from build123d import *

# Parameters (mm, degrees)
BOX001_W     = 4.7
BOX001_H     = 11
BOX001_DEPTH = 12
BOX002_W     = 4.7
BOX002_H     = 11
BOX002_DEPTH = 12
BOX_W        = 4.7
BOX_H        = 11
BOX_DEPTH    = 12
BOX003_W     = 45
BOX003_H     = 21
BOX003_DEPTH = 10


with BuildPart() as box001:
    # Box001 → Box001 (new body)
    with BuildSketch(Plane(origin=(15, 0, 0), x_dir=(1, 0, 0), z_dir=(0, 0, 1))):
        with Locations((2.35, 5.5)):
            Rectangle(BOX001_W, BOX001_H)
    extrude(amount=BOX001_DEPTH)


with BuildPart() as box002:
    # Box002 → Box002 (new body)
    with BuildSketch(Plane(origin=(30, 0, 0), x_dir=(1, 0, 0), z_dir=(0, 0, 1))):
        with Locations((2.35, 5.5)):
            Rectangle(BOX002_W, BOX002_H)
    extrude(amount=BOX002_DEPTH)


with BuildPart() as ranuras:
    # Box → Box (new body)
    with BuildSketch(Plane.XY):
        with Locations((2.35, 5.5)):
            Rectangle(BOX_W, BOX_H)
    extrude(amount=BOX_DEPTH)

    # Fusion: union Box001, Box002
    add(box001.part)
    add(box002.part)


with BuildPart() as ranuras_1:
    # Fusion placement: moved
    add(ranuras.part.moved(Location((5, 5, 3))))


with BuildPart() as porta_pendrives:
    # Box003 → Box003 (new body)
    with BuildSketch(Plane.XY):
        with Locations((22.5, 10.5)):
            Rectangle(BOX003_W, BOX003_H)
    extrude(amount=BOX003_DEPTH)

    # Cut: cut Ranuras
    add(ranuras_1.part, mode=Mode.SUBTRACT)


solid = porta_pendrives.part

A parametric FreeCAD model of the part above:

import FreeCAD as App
import Part
import Sketcher
Q = App.Units.Quantity

doc = App.newDocument("Part")
params = doc.addObject("Spreadsheet::Sheet", "Params")
for row, (alias, value) in enumerate([
    ("sketch1_height", "11 mm"),
    ("sketch1_width", "4.7 mm"),
    ("pad1_length", "12 mm"),
    ("sketch2_height", "11 mm"),
    ("sketch2_width", "4.7 mm"),
    ("pad2_length", "12 mm"),
    ("sketch3_height", "11 mm"),
    ("sketch3_width", "4.7 mm"),
    ("pad3_length", "12 mm"),
    ("sketch4_width", "45 mm"),
    ("sketch4_height", "21 mm"),
    ("pad4_length", "10 mm"),
], start=1):
    params.set(f"A{row}", alias)
    params.set(f"B{row}", "=" + value)
    params.setAlias(f"B{row}", alias)

body = doc.addObject("PartDesign::Body", "Body")

# Sketch on XY plane
sketch1 = body.newObject("Sketcher::SketchObject", "Sketch")
sketch1.AttachmentSupport = (doc.getObject("XY_Plane"), [""])
sketch1.MapMode = "FlatFace"
sketch1.addGeometry(Part.LineSegment(App.Vector(15, 11, 0), App.Vector(15, 0, 0)), False)
sketch1.addGeometry(Part.LineSegment(App.Vector(15, 0, 0), App.Vector(19.7, 0, 0)), False)
sketch1.addGeometry(Part.LineSegment(App.Vector(19.7, 0, 0), App.Vector(19.7, 11, 0)), False)
sketch1.addGeometry(Part.LineSegment(App.Vector(19.7, 11, 0), App.Vector(15, 11, 0)), False)
sketch1.addConstraint(Sketcher.Constraint("Coincident", 0, 2, 1, 1))
sketch1.addConstraint(Sketcher.Constraint("Coincident", 1, 2, 2, 1))
sketch1.addConstraint(Sketcher.Constraint("Coincident", 2, 2, 3, 1))
sketch1.addConstraint(Sketcher.Constraint("Coincident", 3, 2, 0, 1))
sketch1.addConstraint(Sketcher.Constraint("Vertical", 0))
sketch1.addConstraint(Sketcher.Constraint("Horizontal", 1))
sketch1.addConstraint(Sketcher.Constraint("Vertical", 2))
sketch1.addConstraint(Sketcher.Constraint("Horizontal", 3))
sketch1.addConstraint(Sketcher.Constraint("PointOnObject", 0, 2, -1))
sketch1.addConstraint(Sketcher.Constraint("DistanceY", 0, 2, 0, 1, Q("11 mm")))
sketch1.addConstraint(Sketcher.Constraint("DistanceX", 1, 1, 1, 2, Q("4.7 mm")))
sketch1.addConstraint(Sketcher.Constraint("DistanceX", -1, 1, 0, 2, Q("15 mm")))
sketch1.setExpression("Constraints[9]", "Params.sketch1_height")
sketch1.setExpression("Constraints[10]", "Params.sketch1_width")
pad1 = body.newObject("PartDesign::Pad", "Pad")
pad1.Profile = sketch1
pad1.setExpression("Length", "Params.pad1_length")
body2 = doc.addObject("PartDesign::Body", "Body001")

# Sketch on XY plane
sketch2 = body2.newObject("Sketcher::SketchObject", "Sketch001")
sketch2.AttachmentSupport = (doc.getObject("XY_Plane001"), [""])
sketch2.MapMode = "FlatFace"
sketch2.addGeometry(Part.LineSegment(App.Vector(30, 11, 0), App.Vector(30, 0, 0)), False)
sketch2.addGeometry(Part.LineSegment(App.Vector(30, 0, 0), App.Vector(34.7, 0, 0)), False)
sketch2.addGeometry(Part.LineSegment(App.Vector(34.7, 0, 0), App.Vector(34.7, 11, 0)), False)
sketch2.addGeometry(Part.LineSegment(App.Vector(34.7, 11, 0), App.Vector(30, 11, 0)), False)
sketch2.addConstraint(Sketcher.Constraint("Coincident", 0, 2, 1, 1))
sketch2.addConstraint(Sketcher.Constraint("Coincident", 1, 2, 2, 1))
sketch2.addConstraint(Sketcher.Constraint("Coincident", 2, 2, 3, 1))
sketch2.addConstraint(Sketcher.Constraint("Coincident", 3, 2, 0, 1))
sketch2.addConstraint(Sketcher.Constraint("Vertical", 0))
sketch2.addConstraint(Sketcher.Constraint("Horizontal", 1))
sketch2.addConstraint(Sketcher.Constraint("Vertical", 2))
sketch2.addConstraint(Sketcher.Constraint("Horizontal", 3))
sketch2.addConstraint(Sketcher.Constraint("PointOnObject", 0, 2, -1))
sketch2.addConstraint(Sketcher.Constraint("DistanceY", 0, 2, 0, 1, Q("11 mm")))
sketch2.addConstraint(Sketcher.Constraint("DistanceX", 1, 1, 1, 2, Q("4.7 mm")))
sketch2.addConstraint(Sketcher.Constraint("DistanceX", -1, 1, 0, 2, Q("30 mm")))
sketch2.setExpression("Constraints[9]", "Params.sketch2_height")
sketch2.setExpression("Constraints[10]", "Params.sketch2_width")
pad2 = body2.newObject("PartDesign::Pad", "Pad001")
pad2.Profile = sketch2
pad2.setExpression("Length", "Params.pad2_length")
body3 = doc.addObject("PartDesign::Body", "Body002")
body3.AllowCompound = True

# Sketch on XY plane
sketch3 = body3.newObject("Sketcher::SketchObject", "Sketch002")
sketch3.AttachmentSupport = (doc.getObject("XY_Plane002"), [""])
sketch3.MapMode = "FlatFace"
sketch3.addGeometry(Part.LineSegment(App.Vector(0, 11, 0), App.Vector(0, 0, 0)), False)
sketch3.addGeometry(Part.LineSegment(App.Vector(0, 0, 0), App.Vector(4.7, 0, 0)), False)
sketch3.addGeometry(Part.LineSegment(App.Vector(4.7, 0, 0), App.Vector(4.7, 11, 0)), False)
sketch3.addGeometry(Part.LineSegment(App.Vector(4.7, 11, 0), App.Vector(0, 11, 0)), False)
sketch3.addConstraint(Sketcher.Constraint("Coincident", 0, 2, 1, 1))
sketch3.addConstraint(Sketcher.Constraint("Coincident", 1, 2, 2, 1))
sketch3.addConstraint(Sketcher.Constraint("Coincident", 2, 2, 3, 1))
sketch3.addConstraint(Sketcher.Constraint("Coincident", 3, 2, 0, 1))
sketch3.addConstraint(Sketcher.Constraint("Vertical", 0))
sketch3.addConstraint(Sketcher.Constraint("Horizontal", 1))
sketch3.addConstraint(Sketcher.Constraint("Vertical", 2))
sketch3.addConstraint(Sketcher.Constraint("Horizontal", 3))
sketch3.addConstraint(Sketcher.Constraint("Coincident", 0, 2, -1, 1))
sketch3.addConstraint(Sketcher.Constraint("DistanceY", 0, 2, 0, 1, Q("11 mm")))
sketch3.addConstraint(Sketcher.Constraint("DistanceX", 1, 1, 1, 2, Q("4.7 mm")))
sketch3.setExpression("Constraints[9]", "Params.sketch3_height")
sketch3.setExpression("Constraints[10]", "Params.sketch3_width")
pad3 = body3.newObject("PartDesign::Pad", "Pad002")
pad3.Profile = sketch3
pad3.setExpression("Length", "Params.pad3_length")
doc.recompute()

boolean = body3.newObject("PartDesign::Boolean", "Boolean")
boolean.Type = "Fuse"
boolean.addObjects([body])
doc.recompute()

boolean2 = body3.newObject("PartDesign::Boolean", "Boolean001")
boolean2.Type = "Fuse"
boolean2.addObjects([body2])
body4 = doc.addObject("PartDesign::Body", "Body003")
body4.AllowCompound = True
doc.recompute()

body3.Placement = App.Placement(App.Vector(5, 5, 3), App.Rotation(App.Vector(0, 0, 1), 0))
boolean3 = body4.newObject("PartDesign::Boolean", "Boolean002")
boolean3.Type = "Fuse"
boolean3.addObjects([body3])
body5 = doc.addObject("PartDesign::Body", "Body004")

# Sketch on XY plane
sketch4 = body5.newObject("Sketcher::SketchObject", "Sketch003")
sketch4.AttachmentSupport = (doc.getObject("XY_Plane004"), [""])
sketch4.MapMode = "FlatFace"
sketch4.addGeometry(Part.LineSegment(App.Vector(0, 21, 0), App.Vector(0, 0, 0)), False)
sketch4.addGeometry(Part.LineSegment(App.Vector(0, 0, 0), App.Vector(45, 0, 0)), False)
sketch4.addGeometry(Part.LineSegment(App.Vector(45, 0, 0), App.Vector(45, 21, 0)), False)
sketch4.addGeometry(Part.LineSegment(App.Vector(45, 21, 0), App.Vector(0, 21, 0)), False)
sketch4.addConstraint(Sketcher.Constraint("Coincident", 0, 2, 1, 1))
sketch4.addConstraint(Sketcher.Constraint("Coincident", 1, 2, 2, 1))
sketch4.addConstraint(Sketcher.Constraint("Coincident", 2, 2, 3, 1))
sketch4.addConstraint(Sketcher.Constraint("Coincident", 3, 2, 0, 1))
sketch4.addConstraint(Sketcher.Constraint("Vertical", 0))
sketch4.addConstraint(Sketcher.Constraint("Horizontal", 1))
sketch4.addConstraint(Sketcher.Constraint("Vertical", 2))
sketch4.addConstraint(Sketcher.Constraint("Horizontal", 3))
sketch4.addConstraint(Sketcher.Constraint("Coincident", 0, 2, -1, 1))
sketch4.addConstraint(Sketcher.Constraint("DistanceX", 1, 1, 1, 2, Q("45 mm")))
sketch4.addConstraint(Sketcher.Constraint("DistanceY", 0, 2, 0, 1, Q("21 mm")))
sketch4.setExpression("Constraints[9]", "Params.sketch4_width")
sketch4.setExpression("Constraints[10]", "Params.sketch4_height")
pad4 = body5.newObject("PartDesign::Pad", "Pad003")
pad4.Profile = sketch4
pad4.setExpression("Length", "Params.pad4_length")
doc.recompute()

boolean4 = body5.newObject("PartDesign::Boolean", "Boolean003")
boolean4.Type = "Cut"
boolean4.addObjects([body4])

doc.recompute()
